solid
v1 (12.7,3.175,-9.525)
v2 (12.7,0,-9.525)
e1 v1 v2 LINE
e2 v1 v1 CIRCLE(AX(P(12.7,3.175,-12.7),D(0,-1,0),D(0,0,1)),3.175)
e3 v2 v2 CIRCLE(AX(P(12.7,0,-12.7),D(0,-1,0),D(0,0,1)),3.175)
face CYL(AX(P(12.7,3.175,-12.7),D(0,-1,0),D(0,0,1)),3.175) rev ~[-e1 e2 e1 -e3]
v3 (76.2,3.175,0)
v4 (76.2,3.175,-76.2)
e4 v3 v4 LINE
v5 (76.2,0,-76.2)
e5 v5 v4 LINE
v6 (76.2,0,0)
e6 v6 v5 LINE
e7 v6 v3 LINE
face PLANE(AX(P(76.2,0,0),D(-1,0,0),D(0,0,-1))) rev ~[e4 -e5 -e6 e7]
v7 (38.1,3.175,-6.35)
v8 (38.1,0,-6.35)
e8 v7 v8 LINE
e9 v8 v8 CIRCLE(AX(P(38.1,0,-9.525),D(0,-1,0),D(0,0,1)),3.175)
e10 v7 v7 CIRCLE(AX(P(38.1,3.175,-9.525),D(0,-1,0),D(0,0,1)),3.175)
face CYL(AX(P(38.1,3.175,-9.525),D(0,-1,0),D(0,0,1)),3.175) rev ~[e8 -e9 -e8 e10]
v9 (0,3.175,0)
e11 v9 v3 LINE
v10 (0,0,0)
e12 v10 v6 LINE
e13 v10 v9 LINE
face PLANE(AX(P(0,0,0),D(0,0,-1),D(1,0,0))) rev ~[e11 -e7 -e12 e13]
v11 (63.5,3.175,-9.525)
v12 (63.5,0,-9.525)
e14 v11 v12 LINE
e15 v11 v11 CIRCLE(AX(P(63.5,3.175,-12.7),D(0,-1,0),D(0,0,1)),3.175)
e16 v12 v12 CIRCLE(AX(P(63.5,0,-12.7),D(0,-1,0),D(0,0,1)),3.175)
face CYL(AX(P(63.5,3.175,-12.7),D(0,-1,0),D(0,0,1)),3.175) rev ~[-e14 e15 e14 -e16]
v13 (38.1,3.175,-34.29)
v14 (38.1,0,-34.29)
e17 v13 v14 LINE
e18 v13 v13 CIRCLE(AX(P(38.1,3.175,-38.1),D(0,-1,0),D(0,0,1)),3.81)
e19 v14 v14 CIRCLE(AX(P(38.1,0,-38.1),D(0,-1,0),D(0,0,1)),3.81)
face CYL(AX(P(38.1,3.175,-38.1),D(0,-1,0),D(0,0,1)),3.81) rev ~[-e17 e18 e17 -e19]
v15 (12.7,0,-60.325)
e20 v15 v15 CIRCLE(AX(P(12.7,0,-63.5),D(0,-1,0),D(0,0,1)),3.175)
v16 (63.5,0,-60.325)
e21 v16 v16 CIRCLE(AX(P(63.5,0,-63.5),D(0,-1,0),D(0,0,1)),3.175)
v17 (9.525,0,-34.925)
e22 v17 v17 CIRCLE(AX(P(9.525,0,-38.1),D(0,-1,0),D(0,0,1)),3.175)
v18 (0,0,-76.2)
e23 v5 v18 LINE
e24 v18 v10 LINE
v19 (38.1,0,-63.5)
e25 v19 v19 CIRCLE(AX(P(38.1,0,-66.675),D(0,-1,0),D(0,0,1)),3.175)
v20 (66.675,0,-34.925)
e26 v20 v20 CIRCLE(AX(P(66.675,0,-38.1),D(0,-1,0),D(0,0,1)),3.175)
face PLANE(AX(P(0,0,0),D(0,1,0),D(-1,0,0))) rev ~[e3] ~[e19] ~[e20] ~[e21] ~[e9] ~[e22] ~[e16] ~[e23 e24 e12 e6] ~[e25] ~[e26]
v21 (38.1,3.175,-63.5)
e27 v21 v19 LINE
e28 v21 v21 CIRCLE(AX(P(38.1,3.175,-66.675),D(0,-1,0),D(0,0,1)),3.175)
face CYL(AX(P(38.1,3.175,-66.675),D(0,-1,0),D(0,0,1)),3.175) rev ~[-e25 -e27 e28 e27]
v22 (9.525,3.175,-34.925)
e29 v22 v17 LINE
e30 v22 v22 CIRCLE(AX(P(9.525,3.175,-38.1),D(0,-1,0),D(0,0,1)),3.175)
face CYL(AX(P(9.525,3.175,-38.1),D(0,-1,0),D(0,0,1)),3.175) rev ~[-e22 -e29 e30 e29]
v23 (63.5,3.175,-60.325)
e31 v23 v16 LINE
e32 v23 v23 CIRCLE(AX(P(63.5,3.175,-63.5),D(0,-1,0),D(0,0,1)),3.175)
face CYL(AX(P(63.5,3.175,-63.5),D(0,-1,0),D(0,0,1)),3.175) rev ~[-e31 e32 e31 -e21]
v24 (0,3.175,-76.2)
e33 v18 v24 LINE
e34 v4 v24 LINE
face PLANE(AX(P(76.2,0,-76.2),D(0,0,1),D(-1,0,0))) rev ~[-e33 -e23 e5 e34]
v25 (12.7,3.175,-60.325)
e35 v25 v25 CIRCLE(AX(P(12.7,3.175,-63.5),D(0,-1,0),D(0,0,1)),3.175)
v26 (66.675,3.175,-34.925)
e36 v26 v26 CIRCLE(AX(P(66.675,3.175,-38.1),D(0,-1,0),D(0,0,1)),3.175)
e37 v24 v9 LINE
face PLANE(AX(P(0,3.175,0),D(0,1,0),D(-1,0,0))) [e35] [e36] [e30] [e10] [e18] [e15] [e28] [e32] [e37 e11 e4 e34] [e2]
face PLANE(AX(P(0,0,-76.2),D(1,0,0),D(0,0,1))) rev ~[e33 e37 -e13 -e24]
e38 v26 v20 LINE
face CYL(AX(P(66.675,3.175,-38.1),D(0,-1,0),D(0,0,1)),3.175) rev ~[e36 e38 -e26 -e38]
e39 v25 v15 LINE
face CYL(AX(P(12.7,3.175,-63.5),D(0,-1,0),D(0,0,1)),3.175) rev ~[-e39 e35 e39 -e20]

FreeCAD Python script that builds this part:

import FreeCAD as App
import Part
import Sketcher

V = App.Vector
Q = App.Units.Quantity


def add_polygon(sketch, points):
    """Adds a closed chain of lines whose ends are joined by coincident constraints."""
    first, n = sketch.GeometryCount, len(points)
    for a, b in zip(points, points[1:] + points[:1]):
        sketch.addGeometry(Part.LineSegment(App.Vector(*a, 0), App.Vector(*b, 0)), False)
    for i in range(n):
        sketch.addConstraint(Sketcher.Constraint("Coincident", first + i, 2, first + (i + 1) % n, 1))

doc = App.newDocument("Part")
body = doc.addObject("PartDesign::Body", "Body")

# Sketch on XZ plane
sketch1 = body.newObject("Sketcher::SketchObject", "Sketch")
sketch1.AttachmentSupport = (doc.getObject("XZ_Plane"), [""])
sketch1.MapMode = "FlatFace"
add_polygon(sketch1, [(0, -76.2), (0, 0), (76.2, 0), (76.2, -76.2)])  # lines 0-3
sketch1.addConstraint(Sketcher.Constraint("Vertical", 0))
sketch1.addConstraint(Sketcher.Constraint("Horizontal", 1))
sketch1.addConstraint(Sketcher.Constraint("Vertical", 2))
sketch1.addConstraint(Sketcher.Constraint("Horizontal", 3))
sketch1.addConstraint(Sketcher.Constraint("Coincident", 0, 2, -1, 1))
sketch1.addConstraint(Sketcher.Constraint("Equal", 3, 0))
sketch1.addConstraint(Sketcher.Constraint("DistanceX", 1, 1, 1, 2, Q("3 in")))
pad1 = body.newObject("PartDesign::Pad", "Pad")
pad1.Profile = sketch1
pad1.Length = Q("0.125 in")
pad1.Reversed = True

# Sketch on XZ plane
sketch2 = body.newObject("Sketcher::SketchObject", "Sketch001")
sketch2.AttachmentSupport = (doc.getObject("XZ_Plane"), [""])
sketch2.MapMode = "FlatFace"
sketch2.AttachmentOffset = App.Placement(V(0, 0, -0.125 * 25.4), App.Rotation())
sketch2.addGeometry(Part.Circle(V(38.1, -66.675, 0), V(0, 0, 1), 3.175), False)
sketch2.addGeometry(Part.Circle(V(9.525, -38.1, 0), V(0, 0, 1), 3.175), False)
sketch2.addGeometry(Part.Circle(V(38.1, -9.525, 0), V(0, 0, 1), 3.175), False)
sketch2.addGeometry(Part.Circle(V(66.675, -38.1, 0), V(0, 0, 1), 3.175), False)
sketch2.addConstraint(Sketcher.Constraint("Equal", 0, 1))
sketch2.addConstraint(Sketcher.Constraint("Equal", 1, 2))
sketch2.addConstraint(Sketcher.Constraint("Equal", 2, 3))
sketch2.addConstraint(Sketcher.Constraint("Horizontal", 1, 3, 3, 3))
sketch2.addConstraint(Sketcher.Constraint("Vertical", 0, 3, 2, 3))
sketch2.addConstraint(Sketcher.Constraint("Diameter", 0, Q("0.25 in")))
sketch2.addConstraint(Sketcher.Constraint("DistanceX", -1, 1, 0, 3, Q("1.5 in")))
sketch2.addConstraint(Sketcher.Constraint("DistanceY", 1, 3, -1, 1, Q("1.5 in")))
sketch2.addConstraint(Sketcher.Constraint("DistanceY", 0, 3, 2, 3, Q("2.25 in")))
sketch2.addConstraint(Sketcher.Constraint("DistanceX", 1, 3, 3, 3, Q("2.25 in")))
sketch2.addConstraint(Sketcher.Constraint("DistanceY", 0, 3, -1, 1, Q("2.625 in")))
sketch2.addConstraint(Sketcher.Constraint("DistanceX", -1, 1, 1, 3, Q("0.375 in")))
doc.recompute()
hole = body.newObject("PartDesign::Hole", "Hole")
hole.Profile = sketch2
hole.ThreadType = "None"
hole.Diameter = Q("0.25 in")
hole.DepthType = "ThroughAll"
hole.Reversed = True

# Sketch on XZ plane
sketch3 = body.newObject("Sketcher::SketchObject", "Sketch002")
sketch3.AttachmentSupport = (doc.getObject("XZ_Plane"), [""])
sketch3.MapMode = "FlatFace"
sketch3.AttachmentOffset = App.Placement(V(0, 0, -0.125 * 25.4), App.Rotation())
sketch3.addGeometry(Part.Circle(V(12.7, -63.5, 0), V(0, 0, 1), 3.175), False)
sketch3.addGeometry(Part.Circle(V(63.5, -63.5, 0), V(0, 0, 1), 3.175), False)
sketch3.addGeometry(Part.Circle(V(12.7, -12.7, 0), V(0, 0, 1), 3.175), False)
sketch3.addGeometry(Part.Circle(V(63.5, -12.7, 0), V(0, 0, 1), 3.175), False)
sketch3.addConstraint(Sketcher.Constraint("Equal", 0, 1))
sketch3.addConstraint(Sketcher.Constraint("Equal", 1, 2))
sketch3.addConstraint(Sketcher.Constraint("Equal", 2, 3))
sketch3.addConstraint(Sketcher.Constraint("Horizontal", 0, 3, 1, 3))
sketch3.addConstraint(Sketcher.Constraint("Horizontal", 2, 3, 3, 3))
sketch3.addConstraint(Sketcher.Constraint("Vertical", 0, 3, 2, 3))
sketch3.addConstraint(Sketcher.Constraint("Vertical", 1, 3, 3, 3))
sketch3.addConstraint(Sketcher.Constraint("Diameter", 0, Q("0.25 in")))
sketch3.addConstraint(Sketcher.Constraint("DistanceX", 0, 3, 1, 3, Q("2 in")))
sketch3.addConstraint(Sketcher.Constraint("DistanceY", 0, 3, 2, 3, Q("2 in")))
sketch3.addConstraint(Sketcher.Constraint("DistanceX", -1, 1, 0, 3, Q("0.5 in")))
sketch3.addConstraint(Sketcher.Constraint("DistanceY", 0, 3, -1, 1, Q("2.5 in")))
doc.recompute()
hole2 = body.newObject("PartDesign::Hole", "Hole001")
hole2.Profile = sketch3
hole2.ThreadType = "None"
hole2.Diameter = Q("0.25 in")
hole2.DepthType = "ThroughAll"
hole2.Reversed = True

# Sketch on XZ plane
sketch4 = body.newObject("Sketcher::SketchObject", "Sketch003")
sketch4.AttachmentSupport = (doc.getObject("XZ_Plane"), [""])
sketch4.MapMode = "FlatFace"
sketch4.AttachmentOffset = App.Placement(V(0, 0, -0.125 * 25.4), App.Rotation())
sketch4.addGeometry(Part.Circle(V(38.1, -38.1, 0), V(0, 0, 1), 3.81), False)
sketch4.addConstraint(Sketcher.Constraint("Diameter", 0, Q("0.3 in")))
sketch4.addConstraint(Sketcher.Constraint("DistanceX", -1, 1, 0, 3, Q("1.5 in")))
sketch4.addConstraint(Sketcher.Constraint("DistanceY", 0, 3, -1, 1, Q("1.5 in")))
doc.recompute()
hole3 = body.newObject("PartDesign::Hole", "Hole002")
hole3.Profile = sketch4
hole3.ThreadType = "None"
hole3.Diameter = Q("0.3 in")
hole3.DepthType = "ThroughAll"
hole3.Reversed = True

doc.recompute()
